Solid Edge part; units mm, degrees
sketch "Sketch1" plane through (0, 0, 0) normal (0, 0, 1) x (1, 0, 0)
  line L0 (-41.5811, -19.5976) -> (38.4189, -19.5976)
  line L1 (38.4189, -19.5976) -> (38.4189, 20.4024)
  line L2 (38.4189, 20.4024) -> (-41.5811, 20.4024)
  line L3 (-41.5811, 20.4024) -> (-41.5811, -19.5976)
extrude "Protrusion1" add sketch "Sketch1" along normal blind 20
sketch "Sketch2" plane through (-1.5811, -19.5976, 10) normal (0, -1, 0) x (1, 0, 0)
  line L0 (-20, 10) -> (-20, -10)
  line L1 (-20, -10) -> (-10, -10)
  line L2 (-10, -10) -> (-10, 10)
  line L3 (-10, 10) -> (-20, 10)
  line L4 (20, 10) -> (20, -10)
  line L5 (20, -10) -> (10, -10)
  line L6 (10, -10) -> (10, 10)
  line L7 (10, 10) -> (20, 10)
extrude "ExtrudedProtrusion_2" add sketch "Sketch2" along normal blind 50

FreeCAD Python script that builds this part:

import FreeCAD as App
import Part
import Sketcher
Q = App.Units.Quantity

doc = App.newDocument("Part")
body = doc.addObject("PartDesign::Body", "Body")

# Sketch on XY plane
sketch1 = body.newObject("Sketcher::SketchObject", "Sketch")
sketch1.AttachmentSupport = (doc.getObject("XY_Plane"), [""])
sketch1.MapMode = "FlatFace"
sketch1.addGeometry(Part.LineSegment(App.Vector(-42, 20, 0), App.Vector(-42, -20, 0)), False)
sketch1.addGeometry(Part.LineSegment(App.Vector(-42, -20, 0), App.Vector(38, -20, 0)), False)
sketch1.addGeometry(Part.LineSegment(App.Vector(38, -20, 0), App.Vector(38, 20, 0)), False)
sketch1.addGeometry(Part.LineSegment(App.Vector(38, 20, 0), App.Vector(-42, 20, 0)), False)
sketch1.addConstraint(Sketcher.Constraint("Coincident", 0, 2, 1, 1))
sketch1.addConstraint(Sketcher.Constraint("Coincident", 1, 2, 2, 1))
sketch1.addConstraint(Sketcher.Constraint("Coincident", 2, 2, 3, 1))
sketch1.addConstraint(Sketcher.Constraint("Coincident", 3, 2, 0, 1))
sketch1.addConstraint(Sketcher.Constraint("Vertical", 0))
sketch1.addConstraint(Sketcher.Constraint("Horizontal", 1))
sketch1.addConstraint(Sketcher.Constraint("Vertical", 2))
sketch1.addConstraint(Sketcher.Constraint("Horizontal", 3))
sketch1.addConstraint(Sketcher.Constraint("DistanceX", 1, 1, 1, 2, Q("80 mm")))
sketch1.addConstraint(Sketcher.Constraint("DistanceY", 0, 2, 0, 1, Q("40 mm")))
sketch1.addConstraint(Sketcher.Constraint("DistanceX", 0, 2, -1, 1, Q("41.581 mm")))
sketch1.addConstraint(Sketcher.Constraint("DistanceY", 0, 2, -1, 1, Q("19.5976 mm")))
pad1 = body.newObject("PartDesign::Pad", "Pad")
pad1.Profile = sketch1
pad1.Length = 20

# Sketch on XZ plane
sketch2 = body.newObject("Sketcher::SketchObject", "Sketch001")
sketch2.AttachmentSupport = (doc.getObject("XZ_Plane"), [""])
sketch2.MapMode = "FlatFace"
sketch2.AttachmentOffset = App.Placement(App.Vector(0, 0, 19.5976), App.Rotation())
sketch2.addGeometry(Part.LineSegment(App.Vector(-12, 20, 0), App.Vector(-22, 20, 0)), False)
sketch2.addGeometry(Part.LineSegment(App.Vector(-22, 20, 0), App.Vector(-22, 0, 0)), False)
sketch2.addGeometry(Part.LineSegment(App.Vector(-22, 0, 0), App.Vector(-12, 0, 0)), False)
sketch2.addGeometry(Part.LineSegment(App.Vector(-12, 0, 0), App.Vector(-12, 20, 0)), False)
sketch2.addGeometry(Part.LineSegment(App.Vector(18, 0, 0), App.Vector(18, 20, 0)), False)
sketch2.addGeometry(Part.LineSegment(App.Vector(18, 20, 0), App.Vector(8, 20, 0)), False)
sketch2.addGeometry(Part.LineSegment(App.Vector(8, 20, 0), App.Vector(8, 0, 0)), False)
sketch2.addGeometry(Part.LineSegment(App.Vector(8, 0, 0), App.Vector(18, 0, 0)), False)
sketch2.addConstraint(Sketcher.Constraint("Coincident", 0, 2, 1, 1))
sketch2.addConstraint(Sketcher.Constraint("Coincident", 1, 2, 2, 1))
sketch2.addConstraint(Sketcher.Constraint("Coincident", 2, 2, 3, 1))
sketch2.addConstraint(Sketcher.Constraint("Coincident", 3, 2, 0, 1))
sketch2.addConstraint(Sketcher.Constraint("Coincident", 4, 2, 5, 1))
sketch2.addConstraint(Sketcher.Constraint("Coincident", 5, 2, 6, 1))
sketch2.addConstraint(Sketcher.Constraint("Coincident", 6, 2, 7, 1))
sketch2.addConstraint(Sketcher.Constraint("Coincident", 7, 2, 4, 1))
sketch2.addConstraint(Sketcher.Constraint("Horizontal", 0))
sketch2.addConstraint(Sketcher.Constraint("Vertical", 1))
sketch2.addConstraint(Sketcher.Constraint("Horizontal", 2))
sketch2.addConstraint(Sketcher.Constraint("Vertical", 3))
sketch2.addConstraint(Sketcher.Constraint("Vertical", 4))
sketch2.addConstraint(Sketcher.Constraint("Horizontal", 5))
sketch2.addConstraint(Sketcher.Constraint("Vertical", 6))
sketch2.addConstraint(Sketcher.Constraint("Horizontal", 7))
sketch2.addConstraint(Sketcher.Constraint("PointOnObject", 1, 2, -1))
sketch2.addConstraint(Sketcher.Constraint("PointOnObject", 6, 2, -1))
sketch2.addConstraint(Sketcher.Constraint("Horizontal", 3, 2, 4, 2))
sketch2.addConstraint(Sketcher.Constraint("Equal", 2, 5))
sketch2.addConstraint(Sketcher.Constraint("DistanceX", 0, 2, 0, 1, Q("10 mm")))
sketch2.addConstraint(Sketcher.Constraint("DistanceY", 1, 2, 1, 1, Q("20 mm")))
sketch2.addConstraint(Sketcher.Constraint("DistanceX", 3, 2, 4, 2, Q("30 mm")))
sketch2.addConstraint(Sketcher.Constraint("DistanceX", 0, 2, -1, 1, Q("21.581 mm")))
pad2 = body.newObject("PartDesign::Pad", "Pad001")
pad2.Profile = sketch2
pad2.Length = 50

doc.recompute()
